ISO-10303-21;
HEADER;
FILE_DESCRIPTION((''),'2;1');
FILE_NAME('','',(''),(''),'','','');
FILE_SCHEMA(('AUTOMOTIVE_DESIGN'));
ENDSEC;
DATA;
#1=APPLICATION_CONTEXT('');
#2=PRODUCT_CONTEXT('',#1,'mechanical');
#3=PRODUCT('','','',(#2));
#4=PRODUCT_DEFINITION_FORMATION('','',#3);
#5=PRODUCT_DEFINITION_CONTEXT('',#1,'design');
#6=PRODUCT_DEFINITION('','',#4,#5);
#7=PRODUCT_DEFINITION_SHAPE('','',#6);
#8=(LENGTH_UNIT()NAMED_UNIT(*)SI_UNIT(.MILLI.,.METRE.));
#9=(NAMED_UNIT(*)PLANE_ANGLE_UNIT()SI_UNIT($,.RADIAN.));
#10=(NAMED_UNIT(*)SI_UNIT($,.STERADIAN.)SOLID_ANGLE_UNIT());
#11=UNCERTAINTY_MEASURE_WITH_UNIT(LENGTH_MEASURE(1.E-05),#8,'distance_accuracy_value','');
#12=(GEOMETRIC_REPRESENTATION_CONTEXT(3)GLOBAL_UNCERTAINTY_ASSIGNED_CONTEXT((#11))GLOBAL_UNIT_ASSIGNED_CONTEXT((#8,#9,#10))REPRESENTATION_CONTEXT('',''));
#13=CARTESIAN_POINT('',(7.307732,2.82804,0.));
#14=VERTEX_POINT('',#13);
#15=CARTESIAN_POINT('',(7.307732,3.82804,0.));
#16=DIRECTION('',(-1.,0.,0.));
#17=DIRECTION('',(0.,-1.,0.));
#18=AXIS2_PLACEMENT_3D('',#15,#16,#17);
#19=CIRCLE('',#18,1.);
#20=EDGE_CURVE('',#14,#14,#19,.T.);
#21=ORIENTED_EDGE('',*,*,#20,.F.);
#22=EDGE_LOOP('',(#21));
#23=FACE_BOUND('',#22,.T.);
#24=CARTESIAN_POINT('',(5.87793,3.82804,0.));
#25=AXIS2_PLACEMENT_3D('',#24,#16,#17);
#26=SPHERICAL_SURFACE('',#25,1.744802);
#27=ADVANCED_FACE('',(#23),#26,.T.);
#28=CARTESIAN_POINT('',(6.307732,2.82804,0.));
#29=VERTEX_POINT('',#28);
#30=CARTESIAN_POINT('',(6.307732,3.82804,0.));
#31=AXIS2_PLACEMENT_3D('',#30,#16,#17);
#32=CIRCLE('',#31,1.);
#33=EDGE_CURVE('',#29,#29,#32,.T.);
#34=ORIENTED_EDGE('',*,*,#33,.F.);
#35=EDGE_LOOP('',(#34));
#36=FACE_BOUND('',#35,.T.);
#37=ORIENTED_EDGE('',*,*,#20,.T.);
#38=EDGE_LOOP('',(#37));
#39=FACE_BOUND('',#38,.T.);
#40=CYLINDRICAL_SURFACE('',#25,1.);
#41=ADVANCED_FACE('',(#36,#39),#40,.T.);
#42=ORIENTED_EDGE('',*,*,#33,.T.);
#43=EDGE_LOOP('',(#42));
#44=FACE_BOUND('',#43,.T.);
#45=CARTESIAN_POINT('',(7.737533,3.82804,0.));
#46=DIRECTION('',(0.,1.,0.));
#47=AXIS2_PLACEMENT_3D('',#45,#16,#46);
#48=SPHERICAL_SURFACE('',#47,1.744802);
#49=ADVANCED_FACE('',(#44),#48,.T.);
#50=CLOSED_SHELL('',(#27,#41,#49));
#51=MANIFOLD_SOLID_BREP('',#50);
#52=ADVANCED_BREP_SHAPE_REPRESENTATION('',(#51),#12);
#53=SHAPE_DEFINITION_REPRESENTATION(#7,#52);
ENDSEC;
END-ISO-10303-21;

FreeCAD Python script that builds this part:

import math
import FreeCAD as App
import Part
import Sketcher
from FreeCAD import Vector

doc = App.newDocument("Part")
body = doc.addObject("PartDesign::Body", "Body")

# Sketch on XY plane
sketch1 = doc.addObject("Sketcher::SketchObject", "Sketch")
body.addObject(sketch1)
sketch1.AttachmentSupport = (doc.XY_Plane, [""])
sketch1.MapMode = "FlatFace"
sketch1.addGeometry([
    Part.LineSegment(Vector(7.3, 4.8, 0), Vector(6.3, 4.8, 0)),
    Part.ArcOfCircle(Part.Circle(Vector(7.7, 3.8, 0), Vector(0, 0, 1), 1.7), math.radians(145), math.radians(180)),
    Part.LineSegment(Vector(6, 3.8, 0), Vector(7.6, 3.8, 0)),
    Part.ArcOfCircle(Part.Circle(Vector(5.9, 3.8, 0), Vector(0, 0, 1), 1.7), math.radians(0), math.radians(35)),
], False)
sketch1.addGeometry(Part.LineSegment(Vector(5.9, 3.8, 0), Vector(7.7, 3.8, 0)), True)  # axis
sketch1.addConstraint([
    Sketcher.Constraint("Coincident", 0, 2, 1, 1),
    Sketcher.Constraint("Coincident", 1, 2, 2, 1),
    Sketcher.Constraint("Coincident", 2, 2, 3, 1),
    Sketcher.Constraint("Coincident", 3, 2, 0, 1),
    Sketcher.Constraint("Horizontal", 0),
    Sketcher.Constraint("Horizontal", 2),
    Sketcher.Constraint("Horizontal", 4),
    Sketcher.Constraint("Coincident", 4, 1, 3, 3),
    Sketcher.Constraint("Coincident", 4, 2, 1, 3),
    Sketcher.Constraint("Equal", 1, 3),
    Sketcher.Constraint("Horizontal", 3, 3, 1, 2),
    Sketcher.Constraint("DistanceX", 0, 2, 0, 1, 1.0),
    Sketcher.Constraint("DistanceY", 3, 3, 0, 2, 1.0),
    Sketcher.Constraint("DistanceX", 2, 1, 2, 2, 1.63),
    Sketcher.Constraint("DistanceY", -1, 1, 1, 3, 3.82804),
    Sketcher.Constraint("DistanceX", -1, 1, 3, 3, 5.87793),
])
revolution = doc.addObject("PartDesign::Revolution", "Revolution")
body.addObject(revolution)
revolution.Profile = sketch1
revolution.ReferenceAxis = (sketch1, ["Axis0"])
revolution.Angle = 360

doc.recompute()
